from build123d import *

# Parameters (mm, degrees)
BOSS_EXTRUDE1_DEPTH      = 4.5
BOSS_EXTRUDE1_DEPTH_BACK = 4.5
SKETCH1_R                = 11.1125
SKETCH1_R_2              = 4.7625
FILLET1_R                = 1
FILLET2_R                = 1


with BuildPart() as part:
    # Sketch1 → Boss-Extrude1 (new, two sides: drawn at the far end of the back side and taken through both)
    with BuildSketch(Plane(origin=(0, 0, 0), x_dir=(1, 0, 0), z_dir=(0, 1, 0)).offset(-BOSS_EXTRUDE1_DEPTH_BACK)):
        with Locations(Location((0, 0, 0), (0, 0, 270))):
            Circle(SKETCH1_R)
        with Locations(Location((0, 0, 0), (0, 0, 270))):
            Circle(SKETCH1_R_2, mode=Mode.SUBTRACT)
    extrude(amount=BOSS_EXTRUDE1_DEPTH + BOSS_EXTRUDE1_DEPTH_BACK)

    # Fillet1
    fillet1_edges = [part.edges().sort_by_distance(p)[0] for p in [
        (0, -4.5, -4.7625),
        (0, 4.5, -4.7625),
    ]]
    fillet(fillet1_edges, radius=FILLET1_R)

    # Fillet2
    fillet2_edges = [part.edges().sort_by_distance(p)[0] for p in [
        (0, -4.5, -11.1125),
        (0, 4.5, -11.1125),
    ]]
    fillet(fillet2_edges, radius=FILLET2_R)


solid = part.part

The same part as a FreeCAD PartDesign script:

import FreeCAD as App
import Part
import Sketcher

V = App.Vector


def edges_at(feature, points):
    """Names of the edges that pass closest to the given points."""
    edges = feature.Shape.Edges
    near = lambda p: min(range(len(edges)), key=lambda i: edges[i].distToShape(Part.Vertex(*p))[0])
    return sorted({f"Edge{near(p) + 1}" for p in points})

doc = App.newDocument("Part")
params = doc.addObject("Spreadsheet::Sheet", "Params")
for row, (alias, value) in enumerate([
    ("pad1_length", "4.5 mm"),
    ("pad1_length2", "4.5 mm"),
    ("fillet_radius", "1 mm"),
    ("fillet2_radius", "1 mm"),
], start=1):
    params.set(f"A{row}", alias)
    params.set(f"B{row}", "=" + value)
    params.setAlias(f"B{row}", alias)

body = doc.addObject("PartDesign::Body", "Body")

sketch1 = doc.addObject("Sketcher::SketchObject", "Sketch")
body.addObject(sketch1)
sketch1.AttachmentSupport = (doc.XZ_Plane, [""])
sketch1.MapMode = "FlatFace"
sketch1.addGeometry([
    Part.Circle(V(0, 0, 0), V(0, 0, 1), 11.1),
    Part.Circle(V(0, 0, 0), V(0, 0, 1), 4.8),
], False)
sketch1.addConstraint([
    Sketcher.Constraint("Coincident", 0, 3, -1, 1),
    Sketcher.Constraint("Coincident", 1, 3, -1, 1),
    Sketcher.Constraint("Diameter", 0, 22.225),
    Sketcher.Constraint("Diameter", 1, 9.525),
])
pad1 = doc.addObject("PartDesign::Pad", "Pad")
body.addObject(pad1)
pad1.Profile = sketch1
pad1.Type = "TwoLengths"
pad1.setExpression("Length", "Params.pad1_length")
pad1.setExpression("Length2", "Params.pad1_length2")
pad1.Reversed = True
doc.recompute()

fillet = doc.addObject("PartDesign::Fillet", "Fillet")
body.addObject(fillet)
fillet.Base = (pad1, edges_at(pad1, [(0, -4.5, -4.763), (0, 4.5, -4.763)]))
fillet.setExpression("Radius", "Params.fillet_radius")
doc.recompute()

fillet2 = doc.addObject("PartDesign::Fillet", "Fillet001")
body.addObject(fillet2)
fillet2.Base = (fillet, edges_at(fillet, [(0, -4.5, -11.113), (0, 4.5, -11.113)]))
fillet2.setExpression("Radius", "Params.fillet2_radius")

doc.recompute()
